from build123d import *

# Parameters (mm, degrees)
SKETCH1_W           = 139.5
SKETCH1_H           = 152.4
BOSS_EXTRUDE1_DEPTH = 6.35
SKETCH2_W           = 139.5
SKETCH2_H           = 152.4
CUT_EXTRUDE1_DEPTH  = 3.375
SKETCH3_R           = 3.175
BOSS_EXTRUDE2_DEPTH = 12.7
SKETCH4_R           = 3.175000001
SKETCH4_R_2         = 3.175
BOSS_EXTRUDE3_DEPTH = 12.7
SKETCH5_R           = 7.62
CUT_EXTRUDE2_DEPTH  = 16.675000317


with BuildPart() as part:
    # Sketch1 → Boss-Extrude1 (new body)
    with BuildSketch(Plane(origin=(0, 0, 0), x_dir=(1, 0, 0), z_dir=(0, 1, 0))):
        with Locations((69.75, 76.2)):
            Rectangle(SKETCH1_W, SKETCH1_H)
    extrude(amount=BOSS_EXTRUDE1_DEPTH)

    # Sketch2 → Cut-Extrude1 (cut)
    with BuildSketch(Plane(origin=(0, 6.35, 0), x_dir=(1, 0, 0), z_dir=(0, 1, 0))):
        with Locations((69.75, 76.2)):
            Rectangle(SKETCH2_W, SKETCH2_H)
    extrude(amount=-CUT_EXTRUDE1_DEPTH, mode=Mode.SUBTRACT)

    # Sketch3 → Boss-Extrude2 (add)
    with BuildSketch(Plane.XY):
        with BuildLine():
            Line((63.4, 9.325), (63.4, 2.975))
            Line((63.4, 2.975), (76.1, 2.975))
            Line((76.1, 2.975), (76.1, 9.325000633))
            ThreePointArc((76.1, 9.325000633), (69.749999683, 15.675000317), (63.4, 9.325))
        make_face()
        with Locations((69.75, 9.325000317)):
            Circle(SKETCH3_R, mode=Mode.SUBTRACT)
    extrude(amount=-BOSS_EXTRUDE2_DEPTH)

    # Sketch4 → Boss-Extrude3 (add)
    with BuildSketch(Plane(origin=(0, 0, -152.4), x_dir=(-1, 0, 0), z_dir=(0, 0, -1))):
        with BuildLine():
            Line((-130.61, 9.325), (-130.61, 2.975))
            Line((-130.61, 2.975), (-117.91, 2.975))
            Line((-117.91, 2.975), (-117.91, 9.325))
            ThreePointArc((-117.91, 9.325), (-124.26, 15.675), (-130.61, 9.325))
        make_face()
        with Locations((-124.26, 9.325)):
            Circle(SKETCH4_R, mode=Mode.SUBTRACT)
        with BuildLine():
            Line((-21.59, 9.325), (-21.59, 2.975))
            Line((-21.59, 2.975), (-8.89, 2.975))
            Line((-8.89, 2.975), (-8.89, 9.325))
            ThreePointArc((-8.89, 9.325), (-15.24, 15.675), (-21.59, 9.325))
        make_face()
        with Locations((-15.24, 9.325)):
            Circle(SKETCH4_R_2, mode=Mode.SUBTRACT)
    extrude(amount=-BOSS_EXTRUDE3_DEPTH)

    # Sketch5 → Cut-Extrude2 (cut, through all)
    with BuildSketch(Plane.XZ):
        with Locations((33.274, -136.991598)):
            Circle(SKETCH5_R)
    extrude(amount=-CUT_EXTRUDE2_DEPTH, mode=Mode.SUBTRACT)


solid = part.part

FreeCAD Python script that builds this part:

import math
import FreeCAD as App
import Part
import Sketcher

V = App.Vector
Q = App.Units.Quantity

doc = App.newDocument("Part")
body = doc.addObject("PartDesign::Body", "Body")

sketch1 = body.newObject("Sketcher::SketchObject", "Sketch")
sketch1.AttachmentSupport = (doc.getObject("XZ_Plane"), [""])
sketch1.MapMode = "FlatFace"
sketch1.addGeometry(Part.LineSegment(V(0, -152, 0), V(0, 0, 0)), False)
sketch1.addGeometry(Part.LineSegment(V(0, 0, 0), V(140, 0, 0)), False)
sketch1.addGeometry(Part.LineSegment(V(140, 0, 0), V(140, -152, 0)), False)
sketch1.addGeometry(Part.LineSegment(V(140, -152, 0), V(0, -152, 0)), False)
sketch1.addConstraint(Sketcher.Constraint("Coincident", 0, 2, 1, 1))
sketch1.addConstraint(Sketcher.Constraint("Coincident", 1, 2, 2, 1))
sketch1.addConstraint(Sketcher.Constraint("Coincident", 2, 2, 3, 1))
sketch1.addConstraint(Sketcher.Constraint("Coincident", 3, 2, 0, 1))
sketch1.addConstraint(Sketcher.Constraint("Vertical", 0))
sketch1.addConstraint(Sketcher.Constraint("Horizontal", 1))
sketch1.addConstraint(Sketcher.Constraint("Vertical", 2))
sketch1.addConstraint(Sketcher.Constraint("Horizontal", 3))
sketch1.addConstraint(Sketcher.Constraint("Coincident", 0, 2, -1, 1))
sketch1.addConstraint(Sketcher.Constraint("DistanceY", 0, 1, 0, 2, Q("6 in")))
sketch1.addConstraint(Sketcher.Constraint("DistanceX", 1, 1, 1, 2, 139.5))
pad1 = body.newObject("PartDesign::Pad", "Pad")
pad1.Profile = sketch1
pad1.Length = Q("0.25 in")
pad1.Reversed = True

sketch2 = body.newObject("Sketcher::SketchObject", "Sketch001")
sketch2.AttachmentSupport = (doc.getObject("XZ_Plane"), [""])
sketch2.MapMode = "FlatFace"
sketch2.AttachmentOffset = App.Placement(V(0, 0, -0.25 * 25.4), App.Rotation())
sketch2.addGeometry(Part.LineSegment(V(0, -152, 0), V(0, 0, 0)), False)
sketch2.addGeometry(Part.LineSegment(V(0, 0, 0), V(140, 0, 0)), False)
sketch2.addGeometry(Part.LineSegment(V(140, 0, 0), V(140, -152, 0)), False)
sketch2.addGeometry(Part.LineSegment(V(140, -152, 0), V(0, -152, 0)), False)
sketch2.addConstraint(Sketcher.Constraint("Coincident", 0, 2, 1, 1))
sketch2.addConstraint(Sketcher.Constraint("Coincident", 1, 2, 2, 1))
sketch2.addConstraint(Sketcher.Constraint("Coincident", 2, 2, 3, 1))
sketch2.addConstraint(Sketcher.Constraint("Coincident", 3, 2, 0, 1))
sketch2.addConstraint(Sketcher.Constraint("Vertical", 0))
sketch2.addConstraint(Sketcher.Constraint("Horizontal", 1))
sketch2.addConstraint(Sketcher.Constraint("Vertical", 2))
sketch2.addConstraint(Sketcher.Constraint("Horizontal", 3))
sketch2.addConstraint(Sketcher.Constraint("Coincident", 0, 2, -1, 1))
sketch2.addConstraint(Sketcher.Constraint("DistanceY", 0, 1, 0, 2, Q("6 in")))
sketch2.addConstraint(Sketcher.Constraint("DistanceX", 1, 1, 1, 2, 139.5))
pocket1 = body.newObject("PartDesign::Pocket", "Pocket")
pocket1.Profile = sketch2
pocket1.Length = 3.375
pocket1.Reversed = True

sketch3 = body.newObject("Sketcher::SketchObject", "Sketch002")
sketch3.AttachmentSupport = (doc.getObject("XY_Plane"), [""])
sketch3.MapMode = "FlatFace"
sketch3.addGeometry(Part.LineSegment(V(63.4, 9.3, 0), V(63.4, 3, 0)), False)
sketch3.addGeometry(Part.LineSegment(V(63.4, 3, 0), V(76.1, 3, 0)), False)
sketch3.addGeometry(Part.LineSegment(V(76.1, 3, 0), V(76.1, 9.3, 0)), False)
sketch3.addGeometry(Part.ArcOfCircle(Part.Circle(V(69.8, 9.3, 0), V(0, 0, 1), 6.3), math.radians(0), math.radians(180)), False)
sketch3.addGeometry(Part.Circle(V(69.8, 9.3, 0), V(0, 0, 1), 3.2), False)
sketch3.addConstraint(Sketcher.Constraint("Coincident", 0, 2, 1, 1))
sketch3.addConstraint(Sketcher.Constraint("Coincident", 1, 2, 2, 1))
sketch3.addConstraint(Sketcher.Constraint("Tangent", 2, 2, 3, 1))
sketch3.addConstraint(Sketcher.Constraint("Tangent", 3, 2, 0, 1))
sketch3.addConstraint(Sketcher.Constraint("Vertical", 0))
sketch3.addConstraint(Sketcher.Constraint("Horizontal", 1))
sketch3.addConstraint(Sketcher.Constraint("Vertical", 2))
sketch3.addConstraint(Sketcher.Constraint("Coincident", 4, 3, 3, 3))
sketch3.addConstraint(Sketcher.Constraint("Diameter", 4, Q("0.25 in")))
sketch3.addConstraint(Sketcher.Constraint("Radius", 3, Q("0.25 in")))
sketch3.addConstraint(Sketcher.Constraint("DistanceY", 0, 2, 0, 1, Q("0.25 in")))
sketch3.addConstraint(Sketcher.Constraint("DistanceX", -1, 1, 3, 3, 69.75))
sketch3.addConstraint(Sketcher.Constraint("DistanceY", -1, 1, 3, 3, 9.325))
pad2 = body.newObject("PartDesign::Pad", "Pad001")
pad2.Profile = sketch3
pad2.Length = Q("0.5 in")
pad2.Reversed = True

sketch4 = body.newObject("Sketcher::SketchObject", "Sketch003")
sketch4.AttachmentSupport = (doc.getObject("XY_Plane"), [""])
sketch4.MapMode = "FlatFace"
sketch4.AttachmentOffset = App.Placement(V(0, 0, -6 * 25.4), App.Rotation())
sketch4.addGeometry(Part.LineSegment(V(130.6, 9.3, 0), V(130.6, 3, 0)), False)
sketch4.addGeometry(Part.LineSegment(V(130.6, 3, 0), V(117.9, 3, 0)), False)
sketch4.addGeometry(Part.LineSegment(V(117.9, 3, 0), V(117.9, 9.3, 0)), False)
sketch4.addGeometry(Part.ArcOfCircle(Part.Circle(V(124.3, 9.3, 0), V(0, 0, 1), 6.3), math.radians(0), math.radians(180)), False)
sketch4.addGeometry(Part.Circle(V(124.3, 9.3, 0), V(0, 0, 1), 3.2), False)
sketch4.addGeometry(Part.LineSegment(V(21.6, 9.3, 0), V(21.6, 3, 0)), False)
sketch4.addGeometry(Part.LineSegment(V(21.6, 3, 0), V(8.9, 3, 0)), False)
sketch4.addGeometry(Part.LineSegment(V(8.9, 3, 0), V(8.9, 9.3, 0)), False)
sketch4.addGeometry(Part.ArcOfCircle(Part.Circle(V(15.2, 9.3, 0), V(0, 0, 1), 6.3), math.radians(0), math.radians(180)), False)
sketch4.addGeometry(Part.Circle(V(15.2, 9.3, 0), V(0, 0, 1), 3.2), False)
sketch4.addConstraint(Sketcher.Constraint("Coincident", 0, 2, 1, 1))
sketch4.addConstraint(Sketcher.Constraint("Coincident", 1, 2, 2, 1))
sketch4.addConstraint(Sketcher.Constraint("Tangent", 2, 2, 3, 2))
sketch4.addConstraint(Sketcher.Constraint("Tangent", 3, 1, 0, 1))
sketch4.addConstraint(Sketcher.Constraint("Coincident", 5, 2, 6, 1))
sketch4.addConstraint(Sketcher.Constraint("Coincident", 6, 2, 7, 1))
sketch4.addConstraint(Sketcher.Constraint("Tangent", 7, 2, 8, 2))
sketch4.addConstraint(Sketcher.Constraint("Tangent", 8, 1, 5, 1))
sketch4.addConstraint(Sketcher.Constraint("Vertical", 0))
sketch4.addConstraint(Sketcher.Constraint("Horizontal", 1))
sketch4.addConstraint(Sketcher.Constraint("Vertical", 2))
sketch4.addConstraint(Sketcher.Constraint("Vertical", 5))
sketch4.addConstraint(Sketcher.Constraint("Horizontal", 6))
sketch4.addConstraint(Sketcher.Constraint("Vertical", 7))
sketch4.addConstraint(Sketcher.Constraint("Coincident", 4, 3, 3, 3))
sketch4.addConstraint(Sketcher.Constraint("Coincident", 9, 3, 8, 3))
sketch4.addConstraint(Sketcher.Constraint("Equal", 3, 8))
sketch4.addConstraint(Sketcher.Constraint("Equal", 4, 9))
sketch4.addConstraint(Sketcher.Constraint("Horizontal", 4, 3, 8, 3))
sketch4.addConstraint(Sketcher.Constraint("Horizontal", 1, 2, 5, 2))
sketch4.addConstraint(Sketcher.Constraint("Diameter", 4, Q("0.25 in")))
sketch4.addConstraint(Sketcher.Constraint("Radius", 3, Q("0.25 in")))
sketch4.addConstraint(Sketcher.Constraint("DistanceY", 0, 2, 0, 1, Q("0.25 in")))
sketch4.addConstraint(Sketcher.Constraint("DistanceX", -1, 1, 8, 3, Q("0.6 in")))
sketch4.addConstraint(Sketcher.Constraint("DistanceX", -1, 1, 3, 3, 124.26))
sketch4.addConstraint(Sketcher.Constraint("DistanceY", -1, 1, 3, 3, 9.325))
pad3 = body.newObject("PartDesign::Pad", "Pad002")
pad3.Profile = sketch4
pad3.Length = Q("0.5 in")

sketch5 = body.newObject("Sketcher::SketchObject", "Sketch004")
sketch5.AttachmentSupport = (doc.getObject("XZ_Plane"), [""])
sketch5.MapMode = "FlatFace"
sketch5.addGeometry(Part.Circle(V(33, -137, 0), V(0, 0, 1), 8), False)
sketch5.addConstraint(Sketcher.Constraint("Diameter", 0, Q("0.6 in")))
sketch5.addConstraint(Sketcher.Constraint("DistanceX", -1, 1, 0, 3, Q("1.31 in")))
sketch5.addConstraint(Sketcher.Constraint("DistanceY", 0, 3, -1, 1, 136.991598))
pocket2 = body.newObject("PartDesign::Pocket", "Pocket001")
pocket2.Profile = sketch5
pocket2.Type = "ThroughAll"

doc.recompute()
